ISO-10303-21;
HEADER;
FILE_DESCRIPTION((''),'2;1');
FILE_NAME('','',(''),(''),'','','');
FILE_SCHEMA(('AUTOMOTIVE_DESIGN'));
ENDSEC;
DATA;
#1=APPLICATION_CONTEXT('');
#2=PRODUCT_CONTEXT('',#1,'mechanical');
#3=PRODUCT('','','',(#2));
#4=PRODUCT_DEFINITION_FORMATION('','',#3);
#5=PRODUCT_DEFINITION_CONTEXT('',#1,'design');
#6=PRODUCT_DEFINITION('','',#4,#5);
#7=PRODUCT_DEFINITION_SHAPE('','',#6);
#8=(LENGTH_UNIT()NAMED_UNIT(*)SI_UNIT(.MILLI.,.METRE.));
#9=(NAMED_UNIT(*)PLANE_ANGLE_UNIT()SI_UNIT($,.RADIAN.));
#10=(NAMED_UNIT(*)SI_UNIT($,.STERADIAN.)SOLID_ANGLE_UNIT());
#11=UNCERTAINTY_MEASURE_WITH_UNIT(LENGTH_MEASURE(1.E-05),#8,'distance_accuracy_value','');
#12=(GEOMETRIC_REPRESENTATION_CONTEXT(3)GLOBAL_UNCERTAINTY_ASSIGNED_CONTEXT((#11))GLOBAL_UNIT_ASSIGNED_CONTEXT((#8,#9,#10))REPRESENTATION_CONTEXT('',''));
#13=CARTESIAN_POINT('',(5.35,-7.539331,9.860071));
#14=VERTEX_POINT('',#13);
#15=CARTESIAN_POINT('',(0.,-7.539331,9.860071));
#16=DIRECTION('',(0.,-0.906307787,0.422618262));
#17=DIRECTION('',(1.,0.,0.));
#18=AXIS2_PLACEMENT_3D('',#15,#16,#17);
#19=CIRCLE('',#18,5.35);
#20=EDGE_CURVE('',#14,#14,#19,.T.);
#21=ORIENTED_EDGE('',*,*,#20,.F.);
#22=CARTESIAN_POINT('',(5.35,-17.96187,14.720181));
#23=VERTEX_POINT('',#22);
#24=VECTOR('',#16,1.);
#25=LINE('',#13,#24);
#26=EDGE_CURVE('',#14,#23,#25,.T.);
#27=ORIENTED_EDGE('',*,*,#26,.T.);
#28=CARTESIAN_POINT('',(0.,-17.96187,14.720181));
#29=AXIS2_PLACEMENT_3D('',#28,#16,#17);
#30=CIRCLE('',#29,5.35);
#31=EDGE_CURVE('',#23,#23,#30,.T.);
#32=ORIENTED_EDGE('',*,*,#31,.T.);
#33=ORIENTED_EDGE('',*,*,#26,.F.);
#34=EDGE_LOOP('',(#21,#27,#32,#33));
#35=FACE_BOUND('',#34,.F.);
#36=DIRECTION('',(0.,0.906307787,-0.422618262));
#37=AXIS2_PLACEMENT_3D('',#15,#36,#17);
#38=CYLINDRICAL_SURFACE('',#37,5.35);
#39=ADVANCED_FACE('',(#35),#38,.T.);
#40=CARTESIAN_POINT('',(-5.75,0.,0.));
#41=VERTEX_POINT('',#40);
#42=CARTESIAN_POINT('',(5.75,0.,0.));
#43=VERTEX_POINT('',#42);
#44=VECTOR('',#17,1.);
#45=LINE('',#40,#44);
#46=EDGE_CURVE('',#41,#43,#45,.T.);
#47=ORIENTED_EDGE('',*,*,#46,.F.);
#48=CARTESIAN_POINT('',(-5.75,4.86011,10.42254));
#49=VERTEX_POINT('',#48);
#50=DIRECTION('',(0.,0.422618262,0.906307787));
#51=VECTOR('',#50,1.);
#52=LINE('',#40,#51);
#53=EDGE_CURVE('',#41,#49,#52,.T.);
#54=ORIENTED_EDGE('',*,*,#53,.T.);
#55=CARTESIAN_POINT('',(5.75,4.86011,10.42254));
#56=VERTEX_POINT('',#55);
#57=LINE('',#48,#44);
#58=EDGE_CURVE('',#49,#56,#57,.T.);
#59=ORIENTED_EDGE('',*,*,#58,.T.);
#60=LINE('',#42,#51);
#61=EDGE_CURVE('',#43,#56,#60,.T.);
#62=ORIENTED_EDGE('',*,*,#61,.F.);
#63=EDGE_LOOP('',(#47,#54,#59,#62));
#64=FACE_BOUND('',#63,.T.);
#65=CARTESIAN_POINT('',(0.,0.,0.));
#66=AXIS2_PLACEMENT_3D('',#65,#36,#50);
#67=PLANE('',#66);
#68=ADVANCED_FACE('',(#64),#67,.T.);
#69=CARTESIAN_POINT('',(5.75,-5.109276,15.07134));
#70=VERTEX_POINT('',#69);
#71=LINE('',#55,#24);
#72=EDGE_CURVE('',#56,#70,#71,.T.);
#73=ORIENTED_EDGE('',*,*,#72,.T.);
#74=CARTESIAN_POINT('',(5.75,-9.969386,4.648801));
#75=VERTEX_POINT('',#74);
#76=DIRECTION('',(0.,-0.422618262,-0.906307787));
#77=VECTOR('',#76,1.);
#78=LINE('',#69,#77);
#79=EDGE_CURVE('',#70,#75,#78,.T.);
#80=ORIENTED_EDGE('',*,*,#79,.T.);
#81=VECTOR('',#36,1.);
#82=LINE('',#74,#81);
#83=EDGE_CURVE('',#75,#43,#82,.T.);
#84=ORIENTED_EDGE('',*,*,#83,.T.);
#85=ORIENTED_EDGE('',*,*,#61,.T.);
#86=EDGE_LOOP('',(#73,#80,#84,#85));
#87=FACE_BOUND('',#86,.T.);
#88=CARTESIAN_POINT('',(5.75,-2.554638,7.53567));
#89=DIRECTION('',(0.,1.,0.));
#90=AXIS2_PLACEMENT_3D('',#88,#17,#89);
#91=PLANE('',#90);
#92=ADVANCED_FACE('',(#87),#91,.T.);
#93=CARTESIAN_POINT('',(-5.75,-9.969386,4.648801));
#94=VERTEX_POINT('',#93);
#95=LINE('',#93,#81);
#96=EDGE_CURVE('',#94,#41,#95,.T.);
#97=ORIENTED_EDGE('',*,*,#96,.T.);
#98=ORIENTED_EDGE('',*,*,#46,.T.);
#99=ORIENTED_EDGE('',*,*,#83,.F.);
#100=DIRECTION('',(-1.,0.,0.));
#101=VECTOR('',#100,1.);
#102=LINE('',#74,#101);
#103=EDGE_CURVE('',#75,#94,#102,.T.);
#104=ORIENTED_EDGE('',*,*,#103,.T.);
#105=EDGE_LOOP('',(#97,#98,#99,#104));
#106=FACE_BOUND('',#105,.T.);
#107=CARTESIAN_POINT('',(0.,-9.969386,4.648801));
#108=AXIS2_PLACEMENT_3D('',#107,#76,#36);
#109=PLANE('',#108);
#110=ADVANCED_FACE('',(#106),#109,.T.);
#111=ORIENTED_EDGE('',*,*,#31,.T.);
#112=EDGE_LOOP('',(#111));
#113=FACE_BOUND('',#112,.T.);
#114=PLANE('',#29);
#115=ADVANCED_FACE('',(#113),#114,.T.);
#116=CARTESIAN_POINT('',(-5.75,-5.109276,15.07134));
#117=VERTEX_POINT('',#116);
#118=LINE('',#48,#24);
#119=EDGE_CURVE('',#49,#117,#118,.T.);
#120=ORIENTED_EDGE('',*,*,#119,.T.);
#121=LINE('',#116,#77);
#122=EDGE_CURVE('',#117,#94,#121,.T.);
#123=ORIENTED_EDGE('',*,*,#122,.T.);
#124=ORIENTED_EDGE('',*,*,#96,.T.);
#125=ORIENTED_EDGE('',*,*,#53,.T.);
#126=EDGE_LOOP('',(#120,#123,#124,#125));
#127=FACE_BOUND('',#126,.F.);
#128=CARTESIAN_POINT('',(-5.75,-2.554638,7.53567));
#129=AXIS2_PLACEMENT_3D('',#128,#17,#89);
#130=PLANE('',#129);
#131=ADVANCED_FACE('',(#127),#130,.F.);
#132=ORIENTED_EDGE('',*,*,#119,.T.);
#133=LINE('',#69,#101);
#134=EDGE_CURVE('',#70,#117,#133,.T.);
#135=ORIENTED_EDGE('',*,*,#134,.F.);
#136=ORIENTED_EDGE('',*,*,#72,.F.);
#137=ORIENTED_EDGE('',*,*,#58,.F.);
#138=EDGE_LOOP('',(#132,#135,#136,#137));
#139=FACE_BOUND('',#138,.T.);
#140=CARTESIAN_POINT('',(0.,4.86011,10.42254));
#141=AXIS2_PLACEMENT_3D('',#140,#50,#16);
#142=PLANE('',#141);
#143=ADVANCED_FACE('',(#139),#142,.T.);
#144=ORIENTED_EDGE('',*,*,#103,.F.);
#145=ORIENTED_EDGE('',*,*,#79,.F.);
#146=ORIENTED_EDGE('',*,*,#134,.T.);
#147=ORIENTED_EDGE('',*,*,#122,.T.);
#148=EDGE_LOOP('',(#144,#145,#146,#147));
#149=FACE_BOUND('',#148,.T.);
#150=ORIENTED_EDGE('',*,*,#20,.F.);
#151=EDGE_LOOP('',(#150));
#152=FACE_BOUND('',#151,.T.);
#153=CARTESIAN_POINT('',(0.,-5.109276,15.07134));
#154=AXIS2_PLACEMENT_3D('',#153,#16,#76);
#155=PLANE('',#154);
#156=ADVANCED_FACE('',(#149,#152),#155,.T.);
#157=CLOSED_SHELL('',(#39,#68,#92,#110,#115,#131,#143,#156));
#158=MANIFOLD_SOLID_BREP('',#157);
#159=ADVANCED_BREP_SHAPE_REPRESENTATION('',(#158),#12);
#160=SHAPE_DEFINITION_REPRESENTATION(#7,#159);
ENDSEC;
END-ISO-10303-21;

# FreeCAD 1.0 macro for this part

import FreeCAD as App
import Part
import Sketcher
Q = App.Units.Quantity


def add_polygon(sketch, points):
    """Adds a closed chain of lines whose ends are joined by coincident constraints."""
    first, n = sketch.GeometryCount, len(points)
    for a, b in zip(points, points[1:] + points[:1]):
        sketch.addGeometry(Part.LineSegment(App.Vector(*a, 0), App.Vector(*b, 0)), False)
    for i in range(n):
        sketch.addConstraint(Sketcher.Constraint("Coincident", first + i, 2, first + (i + 1) % n, 1))

doc = App.newDocument("Part")
body = doc.addObject("PartDesign::Body", "Body")

sketch1 = body.newObject("Sketcher::SketchObject", "Sketch")
sketch1.AttachmentSupport = (doc.getObject("YZ_Plane"), [""])
sketch1.MapMode = "FlatFace"
add_polygon(sketch1, [(-10, 5), (0, 0), (5, 10), (-5, 15)])
sketch1.addConstraint([
    Sketcher.Constraint("Coincident", 0, 2, -1, 1),
    Sketcher.Constraint("Perpendicular", 0, 1),
    Sketcher.Constraint("Perpendicular", 1, 2),
    Sketcher.Constraint("Perpendicular", 2, 3),
    Sketcher.Constraint("Angle", 0, Q("-25 deg")),
    Sketcher.Constraint("Distance", 0, Q("11 mm")),
    Sketcher.Constraint("Distance", 1, Q("11.5 mm")),
])
pad1 = body.newObject("PartDesign::Pad", "Pad")
pad1.Profile = sketch1
pad1.Length = 11.5
pad1.Midplane = True

sketch2 = body.newObject("Sketcher::SketchObject", "Sketch001")
sketch2.Placement = App.Placement(App.Vector(0, -9.969386, 4.648801), App.Rotation(App.Vector(1, 0, 0), App.Vector(0, 0.422618262, 0.906307787), App.Vector(0, -0.906307787, 0.422618262), "ZXY"))
sketch2.addGeometry(Part.Circle(App.Vector(0, 6, 0), App.Vector(0, 0, 1), 5), False)
sketch2.addConstraint([
    Sketcher.Constraint("PointOnObject", 0, 3, -2),
    Sketcher.Constraint("Diameter", 0, Q("10.7 mm")),
    Sketcher.Constraint("DistanceY", -1, 1, 0, 3, Q("5.75 mm")),
])
pad2 = body.newObject("PartDesign::Pad", "Pad001")
pad2.Profile = sketch2
pad2.Length = 11.5

doc.recompute()
